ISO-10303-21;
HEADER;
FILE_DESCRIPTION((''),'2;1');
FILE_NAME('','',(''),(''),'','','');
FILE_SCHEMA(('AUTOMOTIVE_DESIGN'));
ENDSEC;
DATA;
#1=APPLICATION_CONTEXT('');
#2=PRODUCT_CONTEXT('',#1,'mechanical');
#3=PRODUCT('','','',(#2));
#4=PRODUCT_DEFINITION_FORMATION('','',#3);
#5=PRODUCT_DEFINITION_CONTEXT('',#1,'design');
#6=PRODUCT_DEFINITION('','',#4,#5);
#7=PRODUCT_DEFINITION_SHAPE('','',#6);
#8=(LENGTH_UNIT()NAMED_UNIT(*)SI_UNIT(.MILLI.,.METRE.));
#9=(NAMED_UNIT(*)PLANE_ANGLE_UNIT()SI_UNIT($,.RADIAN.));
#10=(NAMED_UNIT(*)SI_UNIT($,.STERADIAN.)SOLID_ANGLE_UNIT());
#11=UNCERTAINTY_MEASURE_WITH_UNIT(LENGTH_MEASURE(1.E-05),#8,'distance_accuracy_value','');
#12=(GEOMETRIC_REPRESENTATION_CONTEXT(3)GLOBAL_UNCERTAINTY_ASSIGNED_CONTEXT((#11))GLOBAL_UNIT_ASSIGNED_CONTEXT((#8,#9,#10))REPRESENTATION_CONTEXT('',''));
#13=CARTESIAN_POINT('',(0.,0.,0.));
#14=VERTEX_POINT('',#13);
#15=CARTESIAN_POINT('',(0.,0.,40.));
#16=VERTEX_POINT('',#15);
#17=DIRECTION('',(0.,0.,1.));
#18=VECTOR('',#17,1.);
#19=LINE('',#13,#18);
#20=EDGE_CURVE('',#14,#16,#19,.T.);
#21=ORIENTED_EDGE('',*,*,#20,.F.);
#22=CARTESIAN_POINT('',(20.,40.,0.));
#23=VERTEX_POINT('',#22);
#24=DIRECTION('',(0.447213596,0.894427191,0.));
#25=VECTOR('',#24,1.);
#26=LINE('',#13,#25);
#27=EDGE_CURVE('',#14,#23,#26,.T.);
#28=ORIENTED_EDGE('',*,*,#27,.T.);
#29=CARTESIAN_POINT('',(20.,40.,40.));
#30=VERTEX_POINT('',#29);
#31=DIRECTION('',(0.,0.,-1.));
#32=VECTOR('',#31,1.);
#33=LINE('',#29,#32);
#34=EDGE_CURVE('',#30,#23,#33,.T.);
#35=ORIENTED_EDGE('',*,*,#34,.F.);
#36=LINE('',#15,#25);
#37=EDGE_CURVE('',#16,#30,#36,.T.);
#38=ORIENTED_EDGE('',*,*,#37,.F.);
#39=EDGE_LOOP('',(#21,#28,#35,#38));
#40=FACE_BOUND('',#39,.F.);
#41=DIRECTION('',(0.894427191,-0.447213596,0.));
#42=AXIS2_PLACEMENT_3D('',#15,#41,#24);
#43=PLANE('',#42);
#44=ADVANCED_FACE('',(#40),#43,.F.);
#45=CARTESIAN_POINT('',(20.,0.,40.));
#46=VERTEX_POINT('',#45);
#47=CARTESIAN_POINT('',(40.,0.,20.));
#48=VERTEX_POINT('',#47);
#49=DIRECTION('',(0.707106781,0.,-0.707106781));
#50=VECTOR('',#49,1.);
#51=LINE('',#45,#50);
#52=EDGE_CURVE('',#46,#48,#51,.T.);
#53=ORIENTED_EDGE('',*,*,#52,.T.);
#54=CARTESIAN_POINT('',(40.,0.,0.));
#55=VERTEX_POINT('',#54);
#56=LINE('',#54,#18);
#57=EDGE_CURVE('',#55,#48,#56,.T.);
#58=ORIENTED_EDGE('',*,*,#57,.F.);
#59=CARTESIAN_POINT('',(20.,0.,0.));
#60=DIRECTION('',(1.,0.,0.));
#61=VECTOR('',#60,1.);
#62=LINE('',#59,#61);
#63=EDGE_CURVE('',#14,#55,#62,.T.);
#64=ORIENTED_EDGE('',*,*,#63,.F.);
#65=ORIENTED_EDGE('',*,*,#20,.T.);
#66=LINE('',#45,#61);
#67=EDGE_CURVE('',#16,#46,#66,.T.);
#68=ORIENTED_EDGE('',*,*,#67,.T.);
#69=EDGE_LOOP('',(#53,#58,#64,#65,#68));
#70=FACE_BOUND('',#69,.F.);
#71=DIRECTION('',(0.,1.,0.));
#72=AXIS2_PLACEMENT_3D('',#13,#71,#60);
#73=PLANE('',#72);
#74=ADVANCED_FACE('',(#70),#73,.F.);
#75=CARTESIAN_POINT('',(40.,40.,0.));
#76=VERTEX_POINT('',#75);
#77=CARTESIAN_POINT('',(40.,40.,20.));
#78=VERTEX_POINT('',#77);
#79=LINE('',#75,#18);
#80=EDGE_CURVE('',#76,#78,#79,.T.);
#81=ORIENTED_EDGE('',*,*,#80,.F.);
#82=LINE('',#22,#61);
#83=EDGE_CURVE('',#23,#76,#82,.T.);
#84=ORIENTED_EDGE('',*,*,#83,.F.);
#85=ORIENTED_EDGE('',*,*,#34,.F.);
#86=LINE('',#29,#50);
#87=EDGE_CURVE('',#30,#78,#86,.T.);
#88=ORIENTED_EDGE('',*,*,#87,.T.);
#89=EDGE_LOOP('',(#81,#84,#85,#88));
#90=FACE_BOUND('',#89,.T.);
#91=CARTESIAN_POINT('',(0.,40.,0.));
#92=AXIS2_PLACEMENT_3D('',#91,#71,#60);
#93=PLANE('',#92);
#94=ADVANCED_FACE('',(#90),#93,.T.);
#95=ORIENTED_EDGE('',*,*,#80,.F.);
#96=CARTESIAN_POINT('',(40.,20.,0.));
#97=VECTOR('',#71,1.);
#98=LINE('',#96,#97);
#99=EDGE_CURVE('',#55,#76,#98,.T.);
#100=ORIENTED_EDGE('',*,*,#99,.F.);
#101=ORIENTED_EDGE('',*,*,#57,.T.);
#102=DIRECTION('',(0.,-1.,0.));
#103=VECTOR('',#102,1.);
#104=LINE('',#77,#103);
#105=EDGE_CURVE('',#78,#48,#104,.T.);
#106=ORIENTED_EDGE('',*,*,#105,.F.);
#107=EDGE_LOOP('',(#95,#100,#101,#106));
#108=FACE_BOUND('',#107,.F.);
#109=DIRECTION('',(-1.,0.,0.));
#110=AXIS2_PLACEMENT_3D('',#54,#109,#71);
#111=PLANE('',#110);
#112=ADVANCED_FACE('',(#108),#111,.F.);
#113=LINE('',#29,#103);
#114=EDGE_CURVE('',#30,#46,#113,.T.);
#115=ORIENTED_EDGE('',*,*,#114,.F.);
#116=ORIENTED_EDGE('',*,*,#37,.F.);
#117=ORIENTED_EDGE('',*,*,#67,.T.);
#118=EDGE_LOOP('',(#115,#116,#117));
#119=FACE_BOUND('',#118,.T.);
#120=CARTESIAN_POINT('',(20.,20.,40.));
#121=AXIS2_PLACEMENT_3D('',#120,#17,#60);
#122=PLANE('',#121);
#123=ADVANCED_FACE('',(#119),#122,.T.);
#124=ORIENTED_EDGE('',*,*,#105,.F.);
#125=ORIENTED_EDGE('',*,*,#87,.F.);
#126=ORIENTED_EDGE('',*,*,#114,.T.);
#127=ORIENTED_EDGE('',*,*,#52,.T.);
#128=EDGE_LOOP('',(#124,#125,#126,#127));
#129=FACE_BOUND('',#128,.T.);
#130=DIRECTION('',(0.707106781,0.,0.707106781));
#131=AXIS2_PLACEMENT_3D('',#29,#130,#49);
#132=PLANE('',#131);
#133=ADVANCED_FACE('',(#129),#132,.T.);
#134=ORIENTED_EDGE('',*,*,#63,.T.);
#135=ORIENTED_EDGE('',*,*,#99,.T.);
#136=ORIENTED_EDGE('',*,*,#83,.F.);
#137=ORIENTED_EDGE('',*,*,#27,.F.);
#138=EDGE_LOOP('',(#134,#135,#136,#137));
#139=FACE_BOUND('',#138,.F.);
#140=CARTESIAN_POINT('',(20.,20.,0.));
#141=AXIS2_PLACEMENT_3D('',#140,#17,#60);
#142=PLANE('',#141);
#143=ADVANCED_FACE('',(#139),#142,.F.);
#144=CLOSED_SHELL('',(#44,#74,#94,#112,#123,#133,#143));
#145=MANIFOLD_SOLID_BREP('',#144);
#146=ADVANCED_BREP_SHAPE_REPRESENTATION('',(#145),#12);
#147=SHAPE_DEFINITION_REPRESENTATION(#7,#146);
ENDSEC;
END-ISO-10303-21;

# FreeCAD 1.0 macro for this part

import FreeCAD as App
import Part
import Sketcher
Q = App.Units.Quantity

doc = App.newDocument("Part")
params = doc.addObject("Spreadsheet::Sheet", "Params")
for row, (alias, value) in enumerate([
    ("sketch1_width", "40 mm"),
    ("pad1_length", "40 mm"),
    ("sketch2_width", "20 mm"),
    ("sketch2_height", "40 mm"),
    ("pocket1_length", "40 mm"),
    ("sketch3_width", "20 mm"),
    ("pocket2_length", "40 mm"),
], start=1):
    params.set(f"A{row}", alias)
    params.set(f"B{row}", "=" + value)
    params.setAlias(f"B{row}", alias)

body = doc.addObject("PartDesign::Body", "Body")

# Sketch on XY plane
sketch1 = body.newObject("Sketcher::SketchObject", "Sketch")
sketch1.AttachmentSupport = (doc.getObject("XY_Plane"), [""])
sketch1.MapMode = "FlatFace"
sketch1.addGeometry(Part.LineSegment(App.Vector(0, 40, 0), App.Vector(0, 0, 0)), False)
sketch1.addGeometry(Part.LineSegment(App.Vector(0, 0, 0), App.Vector(40, 0, 0)), False)
sketch1.addGeometry(Part.LineSegment(App.Vector(40, 0, 0), App.Vector(40, 40, 0)), False)
sketch1.addGeometry(Part.LineSegment(App.Vector(40, 40, 0), App.Vector(0, 40, 0)), False)
sketch1.addConstraint(Sketcher.Constraint("Coincident", 0, 2, 1, 1))
sketch1.addConstraint(Sketcher.Constraint("Coincident", 1, 2, 2, 1))
sketch1.addConstraint(Sketcher.Constraint("Coincident", 2, 2, 3, 1))
sketch1.addConstraint(Sketcher.Constraint("Coincident", 3, 2, 0, 1))
sketch1.addConstraint(Sketcher.Constraint("Vertical", 0))
sketch1.addConstraint(Sketcher.Constraint("Horizontal", 1))
sketch1.addConstraint(Sketcher.Constraint("Vertical", 2))
sketch1.addConstraint(Sketcher.Constraint("Horizontal", 3))
sketch1.addConstraint(Sketcher.Constraint("Coincident", 0, 2, -1, 1))
sketch1.addConstraint(Sketcher.Constraint("Equal", 3, 0))
sketch1.addConstraint(Sketcher.Constraint("DistanceX", 1, 1, 1, 2, Q("40 mm")))
sketch1.setExpression("Constraints[10]", "Params.sketch1_width")
pad1 = body.newObject("PartDesign::Pad", "Pad")
pad1.Profile = sketch1
pad1.setExpression("Length", "Params.pad1_length")

# Sketch on XY plane
sketch2 = body.newObject("Sketcher::SketchObject", "Sketch001")
sketch2.AttachmentSupport = (doc.getObject("XY_Plane"), [""])
sketch2.MapMode = "FlatFace"
sketch2.AttachmentOffset = App.Placement(App.Vector(0, 0, 40), App.Rotation())
sketch2.addGeometry(Part.LineSegment(App.Vector(0, 0, 0), App.Vector(20, 40, 0)), False)
sketch2.addGeometry(Part.LineSegment(App.Vector(20, 40, 0), App.Vector(0, 40, 0)), False)
sketch2.addGeometry(Part.LineSegment(App.Vector(0, 40, 0), App.Vector(0, 0, 0)), False)
sketch2.addConstraint(Sketcher.Constraint("Coincident", 0, 2, 1, 1))
sketch2.addConstraint(Sketcher.Constraint("Coincident", 1, 2, 2, 1))
sketch2.addConstraint(Sketcher.Constraint("Coincident", 2, 2, 0, 1))
sketch2.addConstraint(Sketcher.Constraint("Horizontal", 1))
sketch2.addConstraint(Sketcher.Constraint("Vertical", 2))
sketch2.addConstraint(Sketcher.Constraint("Coincident", 2, 2, -1, 1))
sketch2.addConstraint(Sketcher.Constraint("DistanceX", 1, 2, 1, 1, Q("20 mm")))
sketch2.addConstraint(Sketcher.Constraint("DistanceY", 2, 2, 2, 1, Q("40 mm")))
sketch2.setExpression("Constraints[6]", "Params.sketch2_width")
sketch2.setExpression("Constraints[7]", "Params.sketch2_height")
pocket1 = body.newObject("PartDesign::Pocket", "Pocket")
pocket1.Profile = sketch2
pocket1.setExpression("Length", "Params.pocket1_length")

# Sketch on XZ plane
sketch3 = body.newObject("Sketcher::SketchObject", "Sketch002")
sketch3.AttachmentSupport = (doc.getObject("XZ_Plane"), [""])
sketch3.MapMode = "FlatFace"
sketch3.AttachmentOffset = App.Placement(App.Vector(0, 0, -40), App.Rotation())
sketch3.addGeometry(Part.LineSegment(App.Vector(40, 20, 0), App.Vector(20, 40, 0)), False)
sketch3.addGeometry(Part.LineSegment(App.Vector(20, 40, 0), App.Vector(40, 40, 0)), False)
sketch3.addGeometry(Part.LineSegment(App.Vector(40, 40, 0), App.Vector(40, 20, 0)), False)
sketch3.addConstraint(Sketcher.Constraint("Coincident", 0, 2, 1, 1))
sketch3.addConstraint(Sketcher.Constraint("Coincident", 1, 2, 2, 1))
sketch3.addConstraint(Sketcher.Constraint("Coincident", 2, 2, 0, 1))
sketch3.addConstraint(Sketcher.Constraint("Horizontal", 1))
sketch3.addConstraint(Sketcher.Constraint("Vertical", 2))
sketch3.addConstraint(Sketcher.Constraint("Equal", 1, 2))
sketch3.addConstraint(Sketcher.Constraint("DistanceX", 1, 1, 1, 2, Q("20 mm")))
sketch3.addConstraint(Sketcher.Constraint("DistanceX", -1, 1, 0, 2, Q("20 mm")))
sketch3.addConstraint(Sketcher.Constraint("DistanceY", -1, 1, 0, 2, Q("40 mm")))
sketch3.setExpression("Constraints[6]", "Params.sketch3_width")
pocket2 = body.newObject("PartDesign::Pocket", "Pocket001")
pocket2.Profile = sketch3
pocket2.setExpression("Length", "Params.pocket2_length")
pocket2.Reversed = True

doc.recompute()
